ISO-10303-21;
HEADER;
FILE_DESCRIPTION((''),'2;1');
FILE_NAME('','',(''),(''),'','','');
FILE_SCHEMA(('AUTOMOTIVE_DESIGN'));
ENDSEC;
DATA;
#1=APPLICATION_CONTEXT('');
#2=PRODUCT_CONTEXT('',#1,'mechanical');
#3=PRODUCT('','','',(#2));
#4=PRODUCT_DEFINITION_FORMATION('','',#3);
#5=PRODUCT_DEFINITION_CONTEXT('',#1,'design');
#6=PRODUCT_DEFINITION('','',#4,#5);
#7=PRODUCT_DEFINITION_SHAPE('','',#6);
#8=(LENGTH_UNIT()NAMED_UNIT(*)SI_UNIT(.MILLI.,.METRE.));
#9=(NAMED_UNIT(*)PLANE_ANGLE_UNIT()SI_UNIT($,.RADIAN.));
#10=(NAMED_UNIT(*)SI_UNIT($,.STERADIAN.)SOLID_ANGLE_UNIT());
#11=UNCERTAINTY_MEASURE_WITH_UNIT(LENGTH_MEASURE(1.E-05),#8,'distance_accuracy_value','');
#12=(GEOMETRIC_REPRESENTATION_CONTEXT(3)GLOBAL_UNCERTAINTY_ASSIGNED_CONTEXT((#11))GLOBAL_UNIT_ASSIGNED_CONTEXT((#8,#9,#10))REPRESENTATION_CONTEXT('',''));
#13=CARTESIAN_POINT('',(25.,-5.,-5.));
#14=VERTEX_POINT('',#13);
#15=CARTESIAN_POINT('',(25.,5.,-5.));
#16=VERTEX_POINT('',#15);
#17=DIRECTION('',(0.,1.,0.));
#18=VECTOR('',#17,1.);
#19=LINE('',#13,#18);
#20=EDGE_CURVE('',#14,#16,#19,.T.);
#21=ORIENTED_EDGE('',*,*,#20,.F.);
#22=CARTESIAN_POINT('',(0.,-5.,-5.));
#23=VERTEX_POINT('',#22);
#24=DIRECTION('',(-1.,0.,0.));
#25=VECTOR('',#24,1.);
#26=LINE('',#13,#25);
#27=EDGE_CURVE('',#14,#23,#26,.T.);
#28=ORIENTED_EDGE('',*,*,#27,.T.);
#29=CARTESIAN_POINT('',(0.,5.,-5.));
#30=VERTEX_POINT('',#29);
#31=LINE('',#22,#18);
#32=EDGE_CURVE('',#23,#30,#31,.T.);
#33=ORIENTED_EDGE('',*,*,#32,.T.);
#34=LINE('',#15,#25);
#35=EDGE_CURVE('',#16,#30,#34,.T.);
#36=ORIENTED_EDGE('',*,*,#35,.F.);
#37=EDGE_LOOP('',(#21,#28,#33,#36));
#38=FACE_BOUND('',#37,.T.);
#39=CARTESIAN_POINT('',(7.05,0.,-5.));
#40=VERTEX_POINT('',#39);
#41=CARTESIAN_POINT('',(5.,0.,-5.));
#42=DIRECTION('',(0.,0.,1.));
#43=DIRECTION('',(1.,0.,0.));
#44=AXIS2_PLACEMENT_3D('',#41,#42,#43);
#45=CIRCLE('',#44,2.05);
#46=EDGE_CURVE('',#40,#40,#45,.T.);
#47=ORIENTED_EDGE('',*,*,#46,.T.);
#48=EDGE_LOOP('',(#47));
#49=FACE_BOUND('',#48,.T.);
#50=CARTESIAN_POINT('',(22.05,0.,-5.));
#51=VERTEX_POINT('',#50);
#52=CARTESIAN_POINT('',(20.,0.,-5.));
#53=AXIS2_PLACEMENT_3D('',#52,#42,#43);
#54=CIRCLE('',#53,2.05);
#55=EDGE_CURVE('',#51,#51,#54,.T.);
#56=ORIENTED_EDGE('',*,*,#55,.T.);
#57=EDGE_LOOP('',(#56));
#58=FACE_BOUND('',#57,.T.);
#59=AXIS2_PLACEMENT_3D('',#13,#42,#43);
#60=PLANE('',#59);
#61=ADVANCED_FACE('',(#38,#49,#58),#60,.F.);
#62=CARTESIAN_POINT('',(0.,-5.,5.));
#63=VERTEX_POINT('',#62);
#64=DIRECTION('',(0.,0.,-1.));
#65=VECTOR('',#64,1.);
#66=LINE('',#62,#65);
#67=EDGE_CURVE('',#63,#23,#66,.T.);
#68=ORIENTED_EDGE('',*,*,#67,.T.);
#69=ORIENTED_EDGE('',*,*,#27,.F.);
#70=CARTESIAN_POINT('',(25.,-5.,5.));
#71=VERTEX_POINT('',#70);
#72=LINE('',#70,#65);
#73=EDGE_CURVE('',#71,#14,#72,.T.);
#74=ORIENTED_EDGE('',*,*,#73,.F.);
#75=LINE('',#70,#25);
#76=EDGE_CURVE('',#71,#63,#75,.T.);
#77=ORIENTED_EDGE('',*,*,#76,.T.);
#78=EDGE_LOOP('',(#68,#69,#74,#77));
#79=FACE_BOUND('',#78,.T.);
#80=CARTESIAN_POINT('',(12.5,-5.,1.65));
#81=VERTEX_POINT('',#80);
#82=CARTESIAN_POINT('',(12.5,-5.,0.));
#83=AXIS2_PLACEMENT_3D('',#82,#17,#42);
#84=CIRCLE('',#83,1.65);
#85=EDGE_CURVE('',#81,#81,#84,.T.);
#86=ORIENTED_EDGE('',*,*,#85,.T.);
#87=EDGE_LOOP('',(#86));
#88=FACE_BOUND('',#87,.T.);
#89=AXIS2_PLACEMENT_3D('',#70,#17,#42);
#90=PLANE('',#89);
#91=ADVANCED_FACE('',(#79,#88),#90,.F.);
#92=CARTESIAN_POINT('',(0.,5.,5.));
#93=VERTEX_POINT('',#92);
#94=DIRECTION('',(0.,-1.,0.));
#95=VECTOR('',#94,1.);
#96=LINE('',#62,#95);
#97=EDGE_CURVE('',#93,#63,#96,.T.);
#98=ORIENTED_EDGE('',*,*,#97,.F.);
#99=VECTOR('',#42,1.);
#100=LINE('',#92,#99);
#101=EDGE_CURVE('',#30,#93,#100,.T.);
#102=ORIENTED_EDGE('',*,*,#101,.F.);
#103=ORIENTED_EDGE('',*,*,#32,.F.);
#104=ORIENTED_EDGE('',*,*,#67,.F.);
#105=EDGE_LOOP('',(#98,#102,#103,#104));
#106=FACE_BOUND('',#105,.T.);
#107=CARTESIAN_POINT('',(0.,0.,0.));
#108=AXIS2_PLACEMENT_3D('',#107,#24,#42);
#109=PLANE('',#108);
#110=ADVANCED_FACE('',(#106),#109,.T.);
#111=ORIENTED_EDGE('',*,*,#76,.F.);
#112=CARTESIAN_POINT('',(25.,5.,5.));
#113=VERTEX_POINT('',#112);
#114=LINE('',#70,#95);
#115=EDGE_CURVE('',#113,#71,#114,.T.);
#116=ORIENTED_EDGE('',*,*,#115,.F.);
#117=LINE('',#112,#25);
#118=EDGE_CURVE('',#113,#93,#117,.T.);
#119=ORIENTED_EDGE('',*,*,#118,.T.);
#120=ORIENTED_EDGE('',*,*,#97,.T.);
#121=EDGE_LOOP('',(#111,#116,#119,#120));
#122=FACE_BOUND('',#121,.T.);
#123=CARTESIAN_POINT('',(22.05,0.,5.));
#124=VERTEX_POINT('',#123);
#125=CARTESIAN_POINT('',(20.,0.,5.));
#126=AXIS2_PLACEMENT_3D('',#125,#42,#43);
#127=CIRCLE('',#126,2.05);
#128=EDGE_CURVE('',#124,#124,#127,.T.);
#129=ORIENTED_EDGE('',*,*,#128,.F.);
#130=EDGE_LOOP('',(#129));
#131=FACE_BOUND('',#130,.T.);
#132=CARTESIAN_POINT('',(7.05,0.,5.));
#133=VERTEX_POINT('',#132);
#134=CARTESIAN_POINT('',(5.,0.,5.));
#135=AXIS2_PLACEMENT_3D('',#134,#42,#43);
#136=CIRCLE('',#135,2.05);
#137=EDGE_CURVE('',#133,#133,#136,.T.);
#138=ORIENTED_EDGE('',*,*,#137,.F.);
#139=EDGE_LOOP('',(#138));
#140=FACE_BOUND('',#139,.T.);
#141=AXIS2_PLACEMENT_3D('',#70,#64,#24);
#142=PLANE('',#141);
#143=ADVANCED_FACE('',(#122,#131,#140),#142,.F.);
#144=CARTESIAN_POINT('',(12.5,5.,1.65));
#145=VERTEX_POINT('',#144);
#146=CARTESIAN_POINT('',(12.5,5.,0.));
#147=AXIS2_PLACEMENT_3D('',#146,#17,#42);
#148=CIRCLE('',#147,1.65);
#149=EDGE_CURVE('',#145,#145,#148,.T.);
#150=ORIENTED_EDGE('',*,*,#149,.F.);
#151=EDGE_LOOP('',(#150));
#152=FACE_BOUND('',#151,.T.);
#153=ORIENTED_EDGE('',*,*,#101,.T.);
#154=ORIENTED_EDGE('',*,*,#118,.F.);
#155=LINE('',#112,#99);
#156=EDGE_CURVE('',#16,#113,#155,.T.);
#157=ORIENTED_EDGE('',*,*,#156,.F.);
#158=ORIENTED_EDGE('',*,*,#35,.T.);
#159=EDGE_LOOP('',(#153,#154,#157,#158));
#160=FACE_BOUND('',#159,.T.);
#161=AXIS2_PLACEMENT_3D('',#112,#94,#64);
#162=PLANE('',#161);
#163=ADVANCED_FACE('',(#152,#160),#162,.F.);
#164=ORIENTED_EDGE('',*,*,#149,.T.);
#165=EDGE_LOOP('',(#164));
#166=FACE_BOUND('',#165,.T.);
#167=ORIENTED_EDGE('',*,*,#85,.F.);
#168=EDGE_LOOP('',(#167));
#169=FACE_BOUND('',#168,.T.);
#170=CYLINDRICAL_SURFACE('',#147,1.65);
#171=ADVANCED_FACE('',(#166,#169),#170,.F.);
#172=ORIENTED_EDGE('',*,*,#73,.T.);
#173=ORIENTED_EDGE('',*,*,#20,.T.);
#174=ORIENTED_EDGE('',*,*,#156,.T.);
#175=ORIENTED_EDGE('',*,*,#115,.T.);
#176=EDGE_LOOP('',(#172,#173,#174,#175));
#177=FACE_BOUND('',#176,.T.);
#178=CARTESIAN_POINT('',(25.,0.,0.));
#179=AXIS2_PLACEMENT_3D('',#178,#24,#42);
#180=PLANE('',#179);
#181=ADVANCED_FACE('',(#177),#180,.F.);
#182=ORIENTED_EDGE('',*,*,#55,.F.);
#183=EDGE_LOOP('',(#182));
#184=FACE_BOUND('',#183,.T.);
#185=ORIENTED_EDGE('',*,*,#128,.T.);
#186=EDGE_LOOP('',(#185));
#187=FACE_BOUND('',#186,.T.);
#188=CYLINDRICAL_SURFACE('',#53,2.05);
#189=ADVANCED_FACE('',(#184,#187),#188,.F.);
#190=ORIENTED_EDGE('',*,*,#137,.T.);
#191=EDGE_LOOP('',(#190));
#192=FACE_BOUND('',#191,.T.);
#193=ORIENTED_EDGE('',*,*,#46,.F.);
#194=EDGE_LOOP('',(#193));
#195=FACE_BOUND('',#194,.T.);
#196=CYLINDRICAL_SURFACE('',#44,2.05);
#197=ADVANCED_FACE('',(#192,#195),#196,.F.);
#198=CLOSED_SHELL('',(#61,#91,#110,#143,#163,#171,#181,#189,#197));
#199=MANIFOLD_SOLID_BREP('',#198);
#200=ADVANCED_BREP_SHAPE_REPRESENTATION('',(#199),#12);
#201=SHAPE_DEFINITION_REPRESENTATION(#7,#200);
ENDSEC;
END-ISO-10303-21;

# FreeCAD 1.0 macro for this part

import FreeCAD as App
import Part
import Sketcher
Q = App.Units.Quantity


def add_polygon(sketch, points):
    """Adds a closed chain of lines whose ends are joined by coincident constraints."""
    first, n = sketch.GeometryCount, len(points)
    for a, b in zip(points, points[1:] + points[:1]):
        sketch.addGeometry(Part.LineSegment(App.Vector(*a, 0), App.Vector(*b, 0)), False)
    for i in range(n):
        sketch.addConstraint(Sketcher.Constraint("Coincident", first + i, 2, first + (i + 1) % n, 1))

doc = App.newDocument("Part")
body = doc.addObject("PartDesign::Body", "Body")

# Sketch on YZ plane
sketch1 = doc.addObject("Sketcher::SketchObject", "Sketch")
body.addObject(sketch1)
sketch1.AttachmentSupport = (doc.YZ_Plane, [""])
sketch1.MapMode = "FlatFace"
add_polygon(sketch1, [(5, 5), (-5, 5), (-5, -5), (5, -5)])  # lines 0-3
sketch1.addConstraint(Sketcher.Constraint("Horizontal", 0))
sketch1.addConstraint(Sketcher.Constraint("Vertical", 1))
sketch1.addConstraint(Sketcher.Constraint("Horizontal", 2))
sketch1.addConstraint(Sketcher.Constraint("Vertical", 3))
sketch1.addConstraint(Sketcher.Constraint("Symmetric", 0, 2, 2, 2, -1, 1))
sketch1.addConstraint(Sketcher.Constraint("Equal", 2, 1))
sketch1.addConstraint(Sketcher.Constraint("DistanceX", 0, 2, 0, 1, Q("10 mm")))
pad1 = doc.addObject("PartDesign::Pad", "Pad")
body.addObject(pad1)
pad1.Profile = sketch1
pad1.Length = 25

# Sketch on XZ plane
sketch2 = doc.addObject("Sketcher::SketchObject", "Sketch001")
body.addObject(sketch2)
sketch2.AttachmentSupport = (doc.XZ_Plane, [""])
sketch2.MapMode = "FlatFace"
sketch2.AttachmentOffset = App.Placement(App.Vector(0, 0, -5), App.Rotation())
sketch2.addGeometry(Part.Circle(App.Vector(12.5, 0, 0), App.Vector(0, 0, 1), 1.5), False)
sketch2.addConstraint(Sketcher.Constraint("PointOnObject", 0, 3, -1))
sketch2.addConstraint(Sketcher.Constraint("Diameter", 0, Q("3 mm")))
sketch2.addConstraint(Sketcher.Constraint("DistanceX", -1, 1, 0, 3, Q("12.5 mm")))
pocket1 = doc.addObject("PartDesign::Pocket", "Pocket")
body.addObject(pocket1)
pocket1.Profile = sketch2
pocket1.Type = "ThroughAll"
pocket1.Reversed = True

# Sketch on XY plane
sketch3 = doc.addObject("Sketcher::SketchObject", "Sketch002")
body.addObject(sketch3)
sketch3.AttachmentSupport = (doc.XY_Plane, [""])
sketch3.MapMode = "FlatFace"
sketch3.AttachmentOffset = App.Placement(App.Vector(0, 0, 5), App.Rotation())
sketch3.addGeometry(Part.Circle(App.Vector(5, 0, 0), App.Vector(0, 0, 1), 2), False)
sketch3.addGeometry(Part.Circle(App.Vector(20, 0, 0), App.Vector(0, 0, 1), 2), False)
sketch3.addConstraint(Sketcher.Constraint("Equal", 0, 1))
sketch3.addConstraint(Sketcher.Constraint("PointOnObject", 0, 3, -1))
sketch3.addConstraint(Sketcher.Constraint("PointOnObject", 1, 3, -1))
sketch3.addConstraint(Sketcher.Constraint("Diameter", 0, Q("4.1 mm")))
sketch3.addConstraint(Sketcher.Constraint("DistanceX", -1, 1, 0, 3, Q("5 mm")))
sketch3.addConstraint(Sketcher.Constraint("DistanceX", -1, 1, 1, 3, Q("20 mm")))
pocket2 = doc.addObject("PartDesign::Pocket", "Pocket001")
body.addObject(pocket2)
pocket2.Profile = sketch3
pocket2.Type = "ThroughAll"

# Sketch on XZ plane
sketch4 = doc.addObject("Sketcher::SketchObject", "Sketch003")
body.addObject(sketch4)
sketch4.AttachmentSupport = (doc.XZ_Plane, [""])
sketch4.MapMode = "FlatFace"
sketch4.AttachmentOffset = App.Placement(App.Vector(0, 0, -5), App.Rotation())
sketch4.addGeometry(Part.Circle(App.Vector(12.5, 0, 0), App.Vector(0, 0, 1), 1.6), False)
sketch4.addConstraint(Sketcher.Constraint("PointOnObject", 0, 3, -1))
sketch4.addConstraint(Sketcher.Constraint("Diameter", 0, Q("3.3 mm")))
sketch4.addConstraint(Sketcher.Constraint("DistanceX", -1, 1, 0, 3, Q("12.5 mm")))
doc.recompute()
hole = doc.addObject("PartDesign::Hole", "Hole")
body.addObject(hole)
hole.Profile = sketch4
hole.ThreadType = "None"
hole.Diameter = 3.3
hole.DepthType = "Dimension"
hole.Depth = 10.1
hole.DrillPoint = "Angled"
hole.DrillPointAngle = 118
hole.Reversed = True

doc.recompute()
